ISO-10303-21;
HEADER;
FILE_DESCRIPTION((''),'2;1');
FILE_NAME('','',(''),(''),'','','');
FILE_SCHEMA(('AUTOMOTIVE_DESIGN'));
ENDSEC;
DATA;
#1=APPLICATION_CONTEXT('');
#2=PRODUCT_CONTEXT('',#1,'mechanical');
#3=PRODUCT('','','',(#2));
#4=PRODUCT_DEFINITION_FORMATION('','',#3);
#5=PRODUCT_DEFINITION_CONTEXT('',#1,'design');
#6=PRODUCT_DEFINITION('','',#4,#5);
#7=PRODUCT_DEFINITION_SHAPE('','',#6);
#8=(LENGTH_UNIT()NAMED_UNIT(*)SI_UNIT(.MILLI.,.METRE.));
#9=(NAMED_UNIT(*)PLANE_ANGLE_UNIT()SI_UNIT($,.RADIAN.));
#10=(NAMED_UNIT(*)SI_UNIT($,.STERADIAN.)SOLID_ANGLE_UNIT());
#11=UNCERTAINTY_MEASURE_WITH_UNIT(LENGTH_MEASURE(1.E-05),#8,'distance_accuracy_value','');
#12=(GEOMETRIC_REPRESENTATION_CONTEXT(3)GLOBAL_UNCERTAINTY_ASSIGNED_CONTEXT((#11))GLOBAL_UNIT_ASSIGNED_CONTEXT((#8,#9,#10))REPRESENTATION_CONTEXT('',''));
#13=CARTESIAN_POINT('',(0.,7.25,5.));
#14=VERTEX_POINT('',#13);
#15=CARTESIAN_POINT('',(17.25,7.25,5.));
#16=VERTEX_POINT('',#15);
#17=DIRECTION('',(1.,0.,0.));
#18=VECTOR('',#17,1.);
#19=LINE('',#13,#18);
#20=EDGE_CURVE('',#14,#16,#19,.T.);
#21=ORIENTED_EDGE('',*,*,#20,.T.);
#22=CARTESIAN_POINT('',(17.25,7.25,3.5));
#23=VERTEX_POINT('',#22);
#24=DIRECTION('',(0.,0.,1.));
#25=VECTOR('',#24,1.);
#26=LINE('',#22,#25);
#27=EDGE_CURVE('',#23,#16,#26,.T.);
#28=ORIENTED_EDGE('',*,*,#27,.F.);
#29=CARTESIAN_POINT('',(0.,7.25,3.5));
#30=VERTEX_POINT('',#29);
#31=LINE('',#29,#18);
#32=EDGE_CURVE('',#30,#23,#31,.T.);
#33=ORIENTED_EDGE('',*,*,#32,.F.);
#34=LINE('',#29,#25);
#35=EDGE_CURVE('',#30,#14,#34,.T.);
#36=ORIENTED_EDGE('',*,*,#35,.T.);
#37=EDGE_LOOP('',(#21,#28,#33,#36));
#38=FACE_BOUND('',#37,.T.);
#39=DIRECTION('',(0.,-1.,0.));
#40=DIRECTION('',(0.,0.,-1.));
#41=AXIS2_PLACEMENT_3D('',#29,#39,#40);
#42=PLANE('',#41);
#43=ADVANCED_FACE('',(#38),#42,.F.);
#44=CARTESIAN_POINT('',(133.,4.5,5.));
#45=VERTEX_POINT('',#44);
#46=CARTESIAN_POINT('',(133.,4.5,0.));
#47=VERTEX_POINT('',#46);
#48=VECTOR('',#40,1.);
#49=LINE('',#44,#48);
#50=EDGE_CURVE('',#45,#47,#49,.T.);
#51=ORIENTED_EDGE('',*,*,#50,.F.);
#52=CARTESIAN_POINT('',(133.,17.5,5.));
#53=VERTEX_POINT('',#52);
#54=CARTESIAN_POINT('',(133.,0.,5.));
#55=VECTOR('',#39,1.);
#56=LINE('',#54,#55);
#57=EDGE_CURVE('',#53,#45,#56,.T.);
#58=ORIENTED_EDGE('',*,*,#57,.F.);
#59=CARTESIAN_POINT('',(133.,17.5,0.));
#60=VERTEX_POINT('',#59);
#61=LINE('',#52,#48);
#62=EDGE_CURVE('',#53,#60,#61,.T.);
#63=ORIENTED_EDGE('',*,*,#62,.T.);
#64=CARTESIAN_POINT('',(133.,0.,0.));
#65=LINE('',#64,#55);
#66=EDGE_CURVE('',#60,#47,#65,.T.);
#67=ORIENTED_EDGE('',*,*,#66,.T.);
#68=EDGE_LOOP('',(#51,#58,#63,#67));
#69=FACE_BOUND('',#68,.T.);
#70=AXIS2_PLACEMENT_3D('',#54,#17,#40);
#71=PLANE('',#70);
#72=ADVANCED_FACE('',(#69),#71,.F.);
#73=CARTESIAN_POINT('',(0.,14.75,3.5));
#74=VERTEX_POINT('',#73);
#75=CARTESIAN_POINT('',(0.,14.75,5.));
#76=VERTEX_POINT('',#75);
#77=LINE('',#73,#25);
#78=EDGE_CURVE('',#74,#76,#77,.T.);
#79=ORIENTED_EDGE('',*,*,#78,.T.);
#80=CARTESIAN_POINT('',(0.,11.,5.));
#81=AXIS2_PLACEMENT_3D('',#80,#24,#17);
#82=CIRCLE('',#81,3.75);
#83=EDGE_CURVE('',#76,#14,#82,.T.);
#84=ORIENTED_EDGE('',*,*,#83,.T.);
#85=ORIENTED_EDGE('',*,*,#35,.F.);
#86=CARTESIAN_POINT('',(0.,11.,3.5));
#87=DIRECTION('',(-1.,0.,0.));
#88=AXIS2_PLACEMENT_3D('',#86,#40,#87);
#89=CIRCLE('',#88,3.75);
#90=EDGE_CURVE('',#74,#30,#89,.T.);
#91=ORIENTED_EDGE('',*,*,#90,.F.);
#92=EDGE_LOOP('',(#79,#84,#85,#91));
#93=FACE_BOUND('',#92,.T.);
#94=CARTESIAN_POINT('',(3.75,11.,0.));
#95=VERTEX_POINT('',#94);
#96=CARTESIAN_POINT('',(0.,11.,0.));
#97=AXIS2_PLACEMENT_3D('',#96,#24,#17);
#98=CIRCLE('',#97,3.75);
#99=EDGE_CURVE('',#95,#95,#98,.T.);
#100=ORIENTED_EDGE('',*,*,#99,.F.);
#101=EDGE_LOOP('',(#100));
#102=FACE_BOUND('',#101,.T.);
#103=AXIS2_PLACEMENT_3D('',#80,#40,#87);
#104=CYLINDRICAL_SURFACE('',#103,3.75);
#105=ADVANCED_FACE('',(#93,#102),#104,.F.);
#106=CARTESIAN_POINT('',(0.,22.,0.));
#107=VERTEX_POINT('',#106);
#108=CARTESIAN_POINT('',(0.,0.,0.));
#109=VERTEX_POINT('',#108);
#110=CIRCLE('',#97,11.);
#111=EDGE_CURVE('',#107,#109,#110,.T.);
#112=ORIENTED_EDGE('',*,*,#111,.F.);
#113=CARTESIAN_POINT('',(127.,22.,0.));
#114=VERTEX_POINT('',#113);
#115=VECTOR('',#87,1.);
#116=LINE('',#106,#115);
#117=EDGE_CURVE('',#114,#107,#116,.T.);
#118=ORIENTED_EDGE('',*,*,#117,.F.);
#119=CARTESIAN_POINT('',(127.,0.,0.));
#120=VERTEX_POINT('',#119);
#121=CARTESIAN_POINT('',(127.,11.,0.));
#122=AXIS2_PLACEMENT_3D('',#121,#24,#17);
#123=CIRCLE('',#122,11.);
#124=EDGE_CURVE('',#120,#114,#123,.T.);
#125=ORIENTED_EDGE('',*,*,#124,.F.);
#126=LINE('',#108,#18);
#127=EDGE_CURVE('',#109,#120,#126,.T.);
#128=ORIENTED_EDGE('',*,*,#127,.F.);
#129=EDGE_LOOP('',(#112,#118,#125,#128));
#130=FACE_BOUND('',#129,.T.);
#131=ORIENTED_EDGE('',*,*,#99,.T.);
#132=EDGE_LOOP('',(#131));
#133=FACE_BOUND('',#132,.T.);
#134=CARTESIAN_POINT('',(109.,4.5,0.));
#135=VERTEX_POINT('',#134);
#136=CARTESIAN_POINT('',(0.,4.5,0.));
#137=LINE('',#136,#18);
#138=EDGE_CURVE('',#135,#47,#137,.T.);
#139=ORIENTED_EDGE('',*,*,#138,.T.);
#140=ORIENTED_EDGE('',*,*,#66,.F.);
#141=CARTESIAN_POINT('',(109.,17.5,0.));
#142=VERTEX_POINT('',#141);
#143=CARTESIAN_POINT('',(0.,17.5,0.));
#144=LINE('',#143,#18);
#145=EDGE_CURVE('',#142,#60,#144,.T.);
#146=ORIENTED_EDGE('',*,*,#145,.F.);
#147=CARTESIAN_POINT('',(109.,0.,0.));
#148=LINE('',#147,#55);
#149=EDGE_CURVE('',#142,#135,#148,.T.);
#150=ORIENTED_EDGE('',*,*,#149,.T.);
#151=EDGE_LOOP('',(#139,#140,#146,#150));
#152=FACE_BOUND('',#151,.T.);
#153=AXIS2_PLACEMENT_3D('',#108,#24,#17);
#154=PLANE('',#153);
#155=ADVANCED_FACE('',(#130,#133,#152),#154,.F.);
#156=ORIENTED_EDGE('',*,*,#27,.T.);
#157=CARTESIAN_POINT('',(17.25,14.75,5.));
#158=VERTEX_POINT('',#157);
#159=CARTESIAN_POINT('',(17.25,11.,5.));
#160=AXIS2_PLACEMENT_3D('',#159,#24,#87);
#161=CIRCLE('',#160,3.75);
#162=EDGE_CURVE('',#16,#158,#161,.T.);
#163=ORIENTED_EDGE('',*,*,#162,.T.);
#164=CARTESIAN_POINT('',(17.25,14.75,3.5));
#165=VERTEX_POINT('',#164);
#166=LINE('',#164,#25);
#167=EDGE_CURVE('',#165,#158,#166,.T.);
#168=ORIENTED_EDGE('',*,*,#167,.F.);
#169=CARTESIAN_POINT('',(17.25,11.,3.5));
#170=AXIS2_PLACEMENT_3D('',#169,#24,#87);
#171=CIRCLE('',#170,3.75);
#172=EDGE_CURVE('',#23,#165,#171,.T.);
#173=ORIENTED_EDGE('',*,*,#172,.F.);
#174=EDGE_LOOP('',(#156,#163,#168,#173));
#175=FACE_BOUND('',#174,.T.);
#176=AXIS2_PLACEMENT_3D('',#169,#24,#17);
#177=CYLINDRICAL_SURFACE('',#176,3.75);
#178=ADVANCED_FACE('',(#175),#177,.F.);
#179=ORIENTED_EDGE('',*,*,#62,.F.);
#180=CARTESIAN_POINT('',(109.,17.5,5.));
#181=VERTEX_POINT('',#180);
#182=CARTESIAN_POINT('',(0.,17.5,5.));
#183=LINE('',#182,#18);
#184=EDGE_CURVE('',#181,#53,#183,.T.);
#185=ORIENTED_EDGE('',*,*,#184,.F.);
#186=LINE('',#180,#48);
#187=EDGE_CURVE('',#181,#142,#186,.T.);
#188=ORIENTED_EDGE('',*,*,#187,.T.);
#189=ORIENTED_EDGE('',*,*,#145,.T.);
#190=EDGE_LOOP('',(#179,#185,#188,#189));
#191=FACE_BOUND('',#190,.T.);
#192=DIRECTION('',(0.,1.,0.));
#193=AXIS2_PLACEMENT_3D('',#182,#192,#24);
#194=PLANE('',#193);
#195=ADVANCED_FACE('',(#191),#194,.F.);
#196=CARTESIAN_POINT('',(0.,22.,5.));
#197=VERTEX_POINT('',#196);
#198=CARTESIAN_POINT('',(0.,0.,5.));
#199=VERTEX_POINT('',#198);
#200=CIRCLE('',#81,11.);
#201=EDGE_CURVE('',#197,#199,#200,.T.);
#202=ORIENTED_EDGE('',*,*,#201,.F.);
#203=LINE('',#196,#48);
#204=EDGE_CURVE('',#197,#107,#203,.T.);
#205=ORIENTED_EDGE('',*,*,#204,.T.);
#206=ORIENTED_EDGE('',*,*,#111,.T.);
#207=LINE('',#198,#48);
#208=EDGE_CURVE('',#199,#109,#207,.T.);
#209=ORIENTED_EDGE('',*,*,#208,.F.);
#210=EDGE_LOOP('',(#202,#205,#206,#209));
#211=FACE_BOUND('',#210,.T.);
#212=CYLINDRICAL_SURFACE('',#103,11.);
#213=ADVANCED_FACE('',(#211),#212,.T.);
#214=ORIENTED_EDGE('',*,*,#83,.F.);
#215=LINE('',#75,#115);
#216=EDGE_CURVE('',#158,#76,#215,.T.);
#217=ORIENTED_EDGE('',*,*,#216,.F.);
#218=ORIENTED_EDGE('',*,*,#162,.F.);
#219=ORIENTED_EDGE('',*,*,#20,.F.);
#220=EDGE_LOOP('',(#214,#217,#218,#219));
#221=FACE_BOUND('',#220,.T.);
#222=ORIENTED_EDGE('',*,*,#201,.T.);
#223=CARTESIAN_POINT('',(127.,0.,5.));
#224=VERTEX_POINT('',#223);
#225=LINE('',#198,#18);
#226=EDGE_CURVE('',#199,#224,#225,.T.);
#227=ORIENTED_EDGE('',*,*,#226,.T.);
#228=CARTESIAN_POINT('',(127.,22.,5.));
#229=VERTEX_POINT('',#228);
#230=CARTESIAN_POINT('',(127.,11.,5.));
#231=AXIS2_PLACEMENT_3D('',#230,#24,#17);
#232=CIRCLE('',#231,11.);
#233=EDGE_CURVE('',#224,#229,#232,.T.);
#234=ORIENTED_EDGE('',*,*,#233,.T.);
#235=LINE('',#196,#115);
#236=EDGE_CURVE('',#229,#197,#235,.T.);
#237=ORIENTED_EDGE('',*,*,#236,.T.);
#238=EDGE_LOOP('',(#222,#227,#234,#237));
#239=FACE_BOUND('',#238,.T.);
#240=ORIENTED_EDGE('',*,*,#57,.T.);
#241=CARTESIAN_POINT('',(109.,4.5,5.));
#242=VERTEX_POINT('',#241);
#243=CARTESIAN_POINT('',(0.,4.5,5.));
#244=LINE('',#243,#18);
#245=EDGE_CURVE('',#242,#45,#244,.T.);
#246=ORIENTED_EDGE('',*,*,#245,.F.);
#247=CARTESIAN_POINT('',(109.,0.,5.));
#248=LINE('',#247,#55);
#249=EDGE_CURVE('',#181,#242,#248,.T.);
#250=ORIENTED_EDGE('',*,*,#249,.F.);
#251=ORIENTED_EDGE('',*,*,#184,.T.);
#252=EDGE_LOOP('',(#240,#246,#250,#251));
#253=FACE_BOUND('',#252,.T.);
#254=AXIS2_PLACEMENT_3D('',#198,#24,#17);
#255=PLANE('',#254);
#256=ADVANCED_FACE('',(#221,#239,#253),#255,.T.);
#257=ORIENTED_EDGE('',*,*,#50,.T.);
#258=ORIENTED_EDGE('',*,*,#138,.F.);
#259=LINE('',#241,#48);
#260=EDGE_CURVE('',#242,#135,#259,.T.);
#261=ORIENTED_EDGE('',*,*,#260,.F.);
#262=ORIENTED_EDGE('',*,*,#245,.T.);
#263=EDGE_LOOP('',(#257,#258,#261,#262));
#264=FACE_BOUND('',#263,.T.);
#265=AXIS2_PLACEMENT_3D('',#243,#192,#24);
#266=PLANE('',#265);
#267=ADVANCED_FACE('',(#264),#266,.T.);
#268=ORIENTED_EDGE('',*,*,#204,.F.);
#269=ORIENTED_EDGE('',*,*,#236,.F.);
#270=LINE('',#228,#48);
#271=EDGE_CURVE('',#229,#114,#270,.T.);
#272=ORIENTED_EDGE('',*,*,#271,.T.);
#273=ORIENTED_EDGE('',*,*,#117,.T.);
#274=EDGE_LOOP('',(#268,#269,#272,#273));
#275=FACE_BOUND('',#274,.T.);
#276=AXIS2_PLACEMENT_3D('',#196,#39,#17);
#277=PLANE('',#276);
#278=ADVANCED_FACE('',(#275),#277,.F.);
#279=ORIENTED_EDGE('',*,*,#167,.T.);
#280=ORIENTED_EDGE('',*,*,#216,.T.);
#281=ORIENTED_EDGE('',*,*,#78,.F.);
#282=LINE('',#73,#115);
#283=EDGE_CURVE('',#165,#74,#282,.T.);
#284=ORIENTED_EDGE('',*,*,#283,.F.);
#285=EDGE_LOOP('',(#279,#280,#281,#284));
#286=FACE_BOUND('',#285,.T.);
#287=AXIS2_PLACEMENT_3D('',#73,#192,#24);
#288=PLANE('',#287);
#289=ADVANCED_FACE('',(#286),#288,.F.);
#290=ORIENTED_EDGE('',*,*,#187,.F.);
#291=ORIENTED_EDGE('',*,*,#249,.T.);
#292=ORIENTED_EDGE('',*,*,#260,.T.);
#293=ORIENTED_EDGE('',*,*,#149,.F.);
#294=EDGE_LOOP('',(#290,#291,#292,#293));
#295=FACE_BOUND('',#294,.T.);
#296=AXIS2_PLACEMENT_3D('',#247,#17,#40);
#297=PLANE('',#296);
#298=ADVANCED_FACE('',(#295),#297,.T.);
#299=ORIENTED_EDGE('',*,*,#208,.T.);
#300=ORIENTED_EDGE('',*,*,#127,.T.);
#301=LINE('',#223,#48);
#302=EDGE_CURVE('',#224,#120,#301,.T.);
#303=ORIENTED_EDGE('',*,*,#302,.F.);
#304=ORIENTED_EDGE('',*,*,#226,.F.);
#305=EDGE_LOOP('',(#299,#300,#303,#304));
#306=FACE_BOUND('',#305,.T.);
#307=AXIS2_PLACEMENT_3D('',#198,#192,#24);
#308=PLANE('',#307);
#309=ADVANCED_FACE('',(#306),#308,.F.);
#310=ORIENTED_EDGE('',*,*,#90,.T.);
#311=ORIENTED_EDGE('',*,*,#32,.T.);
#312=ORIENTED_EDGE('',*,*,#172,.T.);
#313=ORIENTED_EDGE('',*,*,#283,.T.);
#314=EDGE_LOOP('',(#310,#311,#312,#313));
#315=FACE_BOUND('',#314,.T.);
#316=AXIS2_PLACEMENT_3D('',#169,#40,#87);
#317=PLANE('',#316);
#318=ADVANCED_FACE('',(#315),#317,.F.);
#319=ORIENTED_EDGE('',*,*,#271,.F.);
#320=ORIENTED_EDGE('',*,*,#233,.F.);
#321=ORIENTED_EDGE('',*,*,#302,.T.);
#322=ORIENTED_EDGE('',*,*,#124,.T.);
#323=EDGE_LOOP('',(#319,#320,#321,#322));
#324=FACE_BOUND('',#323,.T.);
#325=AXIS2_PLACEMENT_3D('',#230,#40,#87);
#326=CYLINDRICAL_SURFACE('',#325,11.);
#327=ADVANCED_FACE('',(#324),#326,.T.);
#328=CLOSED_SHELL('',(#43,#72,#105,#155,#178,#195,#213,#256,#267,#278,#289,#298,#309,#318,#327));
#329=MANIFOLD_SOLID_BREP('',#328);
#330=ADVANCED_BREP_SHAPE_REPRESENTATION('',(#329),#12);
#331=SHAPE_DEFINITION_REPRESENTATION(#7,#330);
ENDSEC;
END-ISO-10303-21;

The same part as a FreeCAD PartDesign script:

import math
import FreeCAD as App
import Part
import Sketcher
Q = App.Units.Quantity


def add_polygon(sketch, points):
    """Adds a closed chain of lines whose ends are joined by coincident constraints."""
    first, n = sketch.GeometryCount, len(points)
    for a, b in zip(points, points[1:] + points[:1]):
        sketch.addGeometry(Part.LineSegment(App.Vector(*a, 0), App.Vector(*b, 0)), False)
    for i in range(n):
        sketch.addConstraint(Sketcher.Constraint("Coincident", first + i, 2, first + (i + 1) % n, 1))

doc = App.newDocument("Part")
body = doc.addObject("PartDesign::Body", "Body")

# Sketch on XY plane
sketch1 = doc.addObject("Sketcher::SketchObject", "Sketch")
body.addObject(sketch1)
sketch1.AttachmentSupport = (doc.XY_Plane, [""])
sketch1.MapMode = "FlatFace"
sketch1.addGeometry(Part.ArcOfCircle(Part.Circle(App.Vector(0, 11, 0), App.Vector(0, 0, 1), 11), math.radians(90), math.radians(270)), False)  # 0
sketch1.addGeometry(Part.LineSegment(App.Vector(0, 0, 0), App.Vector(127, 0, 0)), False)  # 1
sketch1.addGeometry(Part.ArcOfCircle(Part.Circle(App.Vector(127, 11, 0), App.Vector(0, 0, 1), 11), math.radians(-90), math.radians(90)), False)  # 2
sketch1.addGeometry(Part.LineSegment(App.Vector(127, 22, 0), App.Vector(0, 22, 0)), False)  # 3
sketch1.addGeometry(Part.Circle(App.Vector(0, 11, 0), App.Vector(0, 0, 1), 3.8), False)  # 4
add_polygon(sketch1, [(133, 4.5), (109, 4.5), (109, 17.5), (133, 17.5)])  # lines 5-8
sketch1.addConstraint([
    Sketcher.Constraint("Tangent", 0, 2, 1, 1),
    Sketcher.Constraint("Tangent", 1, 2, 2, 1),
    Sketcher.Constraint("Tangent", 2, 2, 3, 1),
    Sketcher.Constraint("Tangent", 3, 2, 0, 1),
    Sketcher.Constraint("Horizontal", 1),
    Sketcher.Constraint("Horizontal", 3),
    Sketcher.Constraint("Horizontal", 5),
    Sketcher.Constraint("Vertical", 6),
    Sketcher.Constraint("Horizontal", 7),
    Sketcher.Constraint("Vertical", 8),
    Sketcher.Constraint("Coincident", 0, 2, -1, 1),
    Sketcher.Constraint("Coincident", 4, 3, 0, 3),
    Sketcher.Constraint("Radius", 0, Q("11 mm")),
    Sketcher.Constraint("Diameter", 4, Q("7.5 mm")),
    Sketcher.Constraint("DistanceX", 1, 1, 1, 2, Q("127 mm")),
    Sketcher.Constraint("DistanceX", 5, 2, 5, 1, Q("24 mm")),
    Sketcher.Constraint("DistanceY", 6, 1, 6, 2, Q("13 mm")),
    Sketcher.Constraint("DistanceX", -1, 1, 5, 2, Q("109 mm")),
    Sketcher.Constraint("DistanceY", -1, 1, 5, 2, Q("4.5 mm")),
])
pad1 = doc.addObject("PartDesign::Pad", "Pad")
body.addObject(pad1)
pad1.Profile = sketch1
pad1.Length = 5

# Sketch on XY plane
sketch2 = doc.addObject("Sketcher::SketchObject", "Sketch001")
body.addObject(sketch2)
sketch2.AttachmentSupport = (doc.XY_Plane, [""])
sketch2.MapMode = "FlatFace"
sketch2.AttachmentOffset = App.Placement(App.Vector(0, 0, 5), App.Rotation())
sketch2.addGeometry([
    Part.LineSegment(App.Vector(17.2, 14.8, 0), App.Vector(0, 14.8, 0)),
    Part.ArcOfCircle(Part.Circle(App.Vector(0, 11, 0), App.Vector(0, 0, 1), 3.8), math.radians(-90), math.radians(90)),
    Part.LineSegment(App.Vector(0, 7.2, 0), App.Vector(17.2, 7.2, 0)),
    Part.ArcOfCircle(Part.Circle(App.Vector(17.2, 11, 0), App.Vector(0, 0, 1), 3.8), math.radians(-90), math.radians(90)),
], False)
sketch2.addConstraint([
    Sketcher.Constraint("Tangent", 0, 2, 1, 2),
    Sketcher.Constraint("Tangent", 1, 1, 2, 1),
    Sketcher.Constraint("Tangent", 2, 2, 3, 1),
    Sketcher.Constraint("Tangent", 3, 2, 0, 1),
    Sketcher.Constraint("Horizontal", 0),
    Sketcher.Constraint("Horizontal", 2),
    Sketcher.Constraint("PointOnObject", 1, 3, -2),
    Sketcher.Constraint("Radius", 1, Q("3.75 mm")),
    Sketcher.Constraint("DistanceY", -1, 1, 1, 3, Q("11 mm")),
    Sketcher.Constraint("DistanceX", 0, 2, 0, 1, Q("17.25 mm")),
])
pocket1 = doc.addObject("PartDesign::Pocket", "Pocket")
body.addObject(pocket1)
pocket1.Profile = sketch2
pocket1.Length = 1.5

doc.recompute()
